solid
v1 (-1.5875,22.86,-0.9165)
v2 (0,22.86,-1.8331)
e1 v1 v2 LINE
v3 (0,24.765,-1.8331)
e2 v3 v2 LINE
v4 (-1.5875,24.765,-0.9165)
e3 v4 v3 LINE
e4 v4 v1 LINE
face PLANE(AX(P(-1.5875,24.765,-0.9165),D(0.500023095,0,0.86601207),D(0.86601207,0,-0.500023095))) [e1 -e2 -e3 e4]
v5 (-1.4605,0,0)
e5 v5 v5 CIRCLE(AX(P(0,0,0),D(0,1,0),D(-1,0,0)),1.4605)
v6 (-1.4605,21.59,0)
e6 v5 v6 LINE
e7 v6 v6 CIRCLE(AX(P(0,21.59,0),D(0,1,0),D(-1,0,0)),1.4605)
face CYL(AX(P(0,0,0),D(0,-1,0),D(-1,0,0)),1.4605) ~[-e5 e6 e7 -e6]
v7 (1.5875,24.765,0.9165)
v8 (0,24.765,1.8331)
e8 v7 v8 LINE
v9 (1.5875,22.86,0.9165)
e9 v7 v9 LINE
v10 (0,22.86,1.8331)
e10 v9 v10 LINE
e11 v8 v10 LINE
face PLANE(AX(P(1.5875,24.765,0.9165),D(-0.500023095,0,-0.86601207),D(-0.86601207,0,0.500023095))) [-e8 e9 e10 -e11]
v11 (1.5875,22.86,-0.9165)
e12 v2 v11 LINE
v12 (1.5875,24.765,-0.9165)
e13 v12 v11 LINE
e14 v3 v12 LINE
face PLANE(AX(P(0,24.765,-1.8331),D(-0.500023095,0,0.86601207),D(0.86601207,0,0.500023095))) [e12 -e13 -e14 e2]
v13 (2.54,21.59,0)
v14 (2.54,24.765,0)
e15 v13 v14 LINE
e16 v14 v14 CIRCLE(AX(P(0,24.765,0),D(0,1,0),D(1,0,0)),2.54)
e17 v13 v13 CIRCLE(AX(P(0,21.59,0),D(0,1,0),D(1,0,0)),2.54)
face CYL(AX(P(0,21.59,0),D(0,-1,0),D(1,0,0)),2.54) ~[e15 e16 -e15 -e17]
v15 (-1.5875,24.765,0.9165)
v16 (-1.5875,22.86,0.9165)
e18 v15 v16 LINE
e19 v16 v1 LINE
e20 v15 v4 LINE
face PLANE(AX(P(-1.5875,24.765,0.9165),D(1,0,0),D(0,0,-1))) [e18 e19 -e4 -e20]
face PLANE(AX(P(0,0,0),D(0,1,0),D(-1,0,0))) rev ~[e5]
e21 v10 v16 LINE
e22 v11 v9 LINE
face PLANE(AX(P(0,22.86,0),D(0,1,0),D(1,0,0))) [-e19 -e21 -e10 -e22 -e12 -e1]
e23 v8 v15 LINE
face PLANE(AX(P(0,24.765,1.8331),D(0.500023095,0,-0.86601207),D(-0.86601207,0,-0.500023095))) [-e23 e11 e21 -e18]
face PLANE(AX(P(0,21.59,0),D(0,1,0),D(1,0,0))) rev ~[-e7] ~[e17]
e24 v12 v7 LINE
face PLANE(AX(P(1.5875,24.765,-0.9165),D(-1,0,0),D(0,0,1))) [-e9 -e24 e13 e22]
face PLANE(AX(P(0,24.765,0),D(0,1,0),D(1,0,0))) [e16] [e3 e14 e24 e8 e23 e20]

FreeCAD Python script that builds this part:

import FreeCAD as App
import Part
import Sketcher
Q = App.Units.Quantity


def add_polygon(sketch, points):
    """Adds a closed chain of lines whose ends are joined by coincident constraints."""
    first, n = sketch.GeometryCount, len(points)
    for a, b in zip(points, points[1:] + points[:1]):
        sketch.addGeometry(Part.LineSegment(App.Vector(*a, 0), App.Vector(*b, 0)), False)
    for i in range(n):
        sketch.addConstraint(Sketcher.Constraint("Coincident", first + i, 2, first + (i + 1) % n, 1))

doc = App.newDocument("Part")
body = doc.addObject("PartDesign::Body", "Body")

sketch1 = body.newObject("Sketcher::SketchObject", "Sketch")
sketch1.AttachmentSupport = (doc.getObject("XZ_Plane"), [""])
sketch1.MapMode = "FlatFace"
sketch1.addGeometry(Part.Circle(App.Vector(0, 0, 0), App.Vector(0, 0, 1), 1.5), False)
sketch1.addConstraint(Sketcher.Constraint("Coincident", 0, 3, -1, 1))
sketch1.addConstraint(Sketcher.Constraint("Diameter", 0, Q("0.115 in")))
pad1 = body.newObject("PartDesign::Pad", "Pad")
pad1.Profile = sketch1
pad1.Length = Q("0.85 in")
pad1.Reversed = True

sketch2 = body.newObject("Sketcher::SketchObject", "Sketch001")
sketch2.AttachmentSupport = (doc.getObject("XZ_Plane"), [""])
sketch2.MapMode = "FlatFace"
sketch2.AttachmentOffset = App.Placement(App.Vector(0, 0, -0.85 * 25.4), App.Rotation())
sketch2.addGeometry(Part.Circle(App.Vector(0, 0, 0), App.Vector(0, 0, 1), 2.5), False)
sketch2.addConstraint(Sketcher.Constraint("Coincident", 0, 3, -1, 1))
sketch2.addConstraint(Sketcher.Constraint("Diameter", 0, Q("0.2 in")))
pad2 = body.newObject("PartDesign::Pad", "Pad001")
pad2.Profile = sketch2
pad2.Length = Q("0.125 in")
pad2.Reversed = True

sketch3 = body.newObject("Sketcher::SketchObject", "Sketch002")
sketch3.AttachmentSupport = (doc.getObject("XZ_Plane"), [""])
sketch3.MapMode = "FlatFace"
sketch3.AttachmentOffset = App.Placement(App.Vector(0, 0, -0.975 * 25.4), App.Rotation())
add_polygon(sketch3, [(1.6, -0.9), (0, -1.8), (-1.6, -0.9), (-1.6, 0.9), (0, 1.8), (1.6, 0.9)])
sketch3.addConstraint(Sketcher.Constraint("Vertical", 2))
sketch3.addConstraint(Sketcher.Constraint("Vertical", 5))
sketch3.addConstraint(Sketcher.Constraint("Symmetric", 0, 2, 3, 2, -1, 1))
sketch3.addConstraint(Sketcher.Constraint("Symmetric", 1, 2, 4, 2, -1, 1))
sketch3.addConstraint(Sketcher.Constraint("PointOnObject", 0, 2, -2))
sketch3.addConstraint(Sketcher.Constraint("Parallel", 0, 3))
sketch3.addConstraint(Sketcher.Constraint("Horizontal", 2, 2, 4, 2))
sketch3.addConstraint(Sketcher.Constraint("DistanceX", 2, 2, 4, 2, Q("0.125 in")))
sketch3.addConstraint(Sketcher.Constraint("DistanceY", 2, 1, 2, 2, Q("1.833 mm")))
sketch3.addConstraint(Sketcher.Constraint("Distance", 0, Q("1.833 mm")))
pocket1 = body.newObject("PartDesign::Pocket", "Pocket")
pocket1.Profile = sketch3
pocket1.Length = Q("0.075 in")
pocket1.Reversed = True

doc.recompute()
